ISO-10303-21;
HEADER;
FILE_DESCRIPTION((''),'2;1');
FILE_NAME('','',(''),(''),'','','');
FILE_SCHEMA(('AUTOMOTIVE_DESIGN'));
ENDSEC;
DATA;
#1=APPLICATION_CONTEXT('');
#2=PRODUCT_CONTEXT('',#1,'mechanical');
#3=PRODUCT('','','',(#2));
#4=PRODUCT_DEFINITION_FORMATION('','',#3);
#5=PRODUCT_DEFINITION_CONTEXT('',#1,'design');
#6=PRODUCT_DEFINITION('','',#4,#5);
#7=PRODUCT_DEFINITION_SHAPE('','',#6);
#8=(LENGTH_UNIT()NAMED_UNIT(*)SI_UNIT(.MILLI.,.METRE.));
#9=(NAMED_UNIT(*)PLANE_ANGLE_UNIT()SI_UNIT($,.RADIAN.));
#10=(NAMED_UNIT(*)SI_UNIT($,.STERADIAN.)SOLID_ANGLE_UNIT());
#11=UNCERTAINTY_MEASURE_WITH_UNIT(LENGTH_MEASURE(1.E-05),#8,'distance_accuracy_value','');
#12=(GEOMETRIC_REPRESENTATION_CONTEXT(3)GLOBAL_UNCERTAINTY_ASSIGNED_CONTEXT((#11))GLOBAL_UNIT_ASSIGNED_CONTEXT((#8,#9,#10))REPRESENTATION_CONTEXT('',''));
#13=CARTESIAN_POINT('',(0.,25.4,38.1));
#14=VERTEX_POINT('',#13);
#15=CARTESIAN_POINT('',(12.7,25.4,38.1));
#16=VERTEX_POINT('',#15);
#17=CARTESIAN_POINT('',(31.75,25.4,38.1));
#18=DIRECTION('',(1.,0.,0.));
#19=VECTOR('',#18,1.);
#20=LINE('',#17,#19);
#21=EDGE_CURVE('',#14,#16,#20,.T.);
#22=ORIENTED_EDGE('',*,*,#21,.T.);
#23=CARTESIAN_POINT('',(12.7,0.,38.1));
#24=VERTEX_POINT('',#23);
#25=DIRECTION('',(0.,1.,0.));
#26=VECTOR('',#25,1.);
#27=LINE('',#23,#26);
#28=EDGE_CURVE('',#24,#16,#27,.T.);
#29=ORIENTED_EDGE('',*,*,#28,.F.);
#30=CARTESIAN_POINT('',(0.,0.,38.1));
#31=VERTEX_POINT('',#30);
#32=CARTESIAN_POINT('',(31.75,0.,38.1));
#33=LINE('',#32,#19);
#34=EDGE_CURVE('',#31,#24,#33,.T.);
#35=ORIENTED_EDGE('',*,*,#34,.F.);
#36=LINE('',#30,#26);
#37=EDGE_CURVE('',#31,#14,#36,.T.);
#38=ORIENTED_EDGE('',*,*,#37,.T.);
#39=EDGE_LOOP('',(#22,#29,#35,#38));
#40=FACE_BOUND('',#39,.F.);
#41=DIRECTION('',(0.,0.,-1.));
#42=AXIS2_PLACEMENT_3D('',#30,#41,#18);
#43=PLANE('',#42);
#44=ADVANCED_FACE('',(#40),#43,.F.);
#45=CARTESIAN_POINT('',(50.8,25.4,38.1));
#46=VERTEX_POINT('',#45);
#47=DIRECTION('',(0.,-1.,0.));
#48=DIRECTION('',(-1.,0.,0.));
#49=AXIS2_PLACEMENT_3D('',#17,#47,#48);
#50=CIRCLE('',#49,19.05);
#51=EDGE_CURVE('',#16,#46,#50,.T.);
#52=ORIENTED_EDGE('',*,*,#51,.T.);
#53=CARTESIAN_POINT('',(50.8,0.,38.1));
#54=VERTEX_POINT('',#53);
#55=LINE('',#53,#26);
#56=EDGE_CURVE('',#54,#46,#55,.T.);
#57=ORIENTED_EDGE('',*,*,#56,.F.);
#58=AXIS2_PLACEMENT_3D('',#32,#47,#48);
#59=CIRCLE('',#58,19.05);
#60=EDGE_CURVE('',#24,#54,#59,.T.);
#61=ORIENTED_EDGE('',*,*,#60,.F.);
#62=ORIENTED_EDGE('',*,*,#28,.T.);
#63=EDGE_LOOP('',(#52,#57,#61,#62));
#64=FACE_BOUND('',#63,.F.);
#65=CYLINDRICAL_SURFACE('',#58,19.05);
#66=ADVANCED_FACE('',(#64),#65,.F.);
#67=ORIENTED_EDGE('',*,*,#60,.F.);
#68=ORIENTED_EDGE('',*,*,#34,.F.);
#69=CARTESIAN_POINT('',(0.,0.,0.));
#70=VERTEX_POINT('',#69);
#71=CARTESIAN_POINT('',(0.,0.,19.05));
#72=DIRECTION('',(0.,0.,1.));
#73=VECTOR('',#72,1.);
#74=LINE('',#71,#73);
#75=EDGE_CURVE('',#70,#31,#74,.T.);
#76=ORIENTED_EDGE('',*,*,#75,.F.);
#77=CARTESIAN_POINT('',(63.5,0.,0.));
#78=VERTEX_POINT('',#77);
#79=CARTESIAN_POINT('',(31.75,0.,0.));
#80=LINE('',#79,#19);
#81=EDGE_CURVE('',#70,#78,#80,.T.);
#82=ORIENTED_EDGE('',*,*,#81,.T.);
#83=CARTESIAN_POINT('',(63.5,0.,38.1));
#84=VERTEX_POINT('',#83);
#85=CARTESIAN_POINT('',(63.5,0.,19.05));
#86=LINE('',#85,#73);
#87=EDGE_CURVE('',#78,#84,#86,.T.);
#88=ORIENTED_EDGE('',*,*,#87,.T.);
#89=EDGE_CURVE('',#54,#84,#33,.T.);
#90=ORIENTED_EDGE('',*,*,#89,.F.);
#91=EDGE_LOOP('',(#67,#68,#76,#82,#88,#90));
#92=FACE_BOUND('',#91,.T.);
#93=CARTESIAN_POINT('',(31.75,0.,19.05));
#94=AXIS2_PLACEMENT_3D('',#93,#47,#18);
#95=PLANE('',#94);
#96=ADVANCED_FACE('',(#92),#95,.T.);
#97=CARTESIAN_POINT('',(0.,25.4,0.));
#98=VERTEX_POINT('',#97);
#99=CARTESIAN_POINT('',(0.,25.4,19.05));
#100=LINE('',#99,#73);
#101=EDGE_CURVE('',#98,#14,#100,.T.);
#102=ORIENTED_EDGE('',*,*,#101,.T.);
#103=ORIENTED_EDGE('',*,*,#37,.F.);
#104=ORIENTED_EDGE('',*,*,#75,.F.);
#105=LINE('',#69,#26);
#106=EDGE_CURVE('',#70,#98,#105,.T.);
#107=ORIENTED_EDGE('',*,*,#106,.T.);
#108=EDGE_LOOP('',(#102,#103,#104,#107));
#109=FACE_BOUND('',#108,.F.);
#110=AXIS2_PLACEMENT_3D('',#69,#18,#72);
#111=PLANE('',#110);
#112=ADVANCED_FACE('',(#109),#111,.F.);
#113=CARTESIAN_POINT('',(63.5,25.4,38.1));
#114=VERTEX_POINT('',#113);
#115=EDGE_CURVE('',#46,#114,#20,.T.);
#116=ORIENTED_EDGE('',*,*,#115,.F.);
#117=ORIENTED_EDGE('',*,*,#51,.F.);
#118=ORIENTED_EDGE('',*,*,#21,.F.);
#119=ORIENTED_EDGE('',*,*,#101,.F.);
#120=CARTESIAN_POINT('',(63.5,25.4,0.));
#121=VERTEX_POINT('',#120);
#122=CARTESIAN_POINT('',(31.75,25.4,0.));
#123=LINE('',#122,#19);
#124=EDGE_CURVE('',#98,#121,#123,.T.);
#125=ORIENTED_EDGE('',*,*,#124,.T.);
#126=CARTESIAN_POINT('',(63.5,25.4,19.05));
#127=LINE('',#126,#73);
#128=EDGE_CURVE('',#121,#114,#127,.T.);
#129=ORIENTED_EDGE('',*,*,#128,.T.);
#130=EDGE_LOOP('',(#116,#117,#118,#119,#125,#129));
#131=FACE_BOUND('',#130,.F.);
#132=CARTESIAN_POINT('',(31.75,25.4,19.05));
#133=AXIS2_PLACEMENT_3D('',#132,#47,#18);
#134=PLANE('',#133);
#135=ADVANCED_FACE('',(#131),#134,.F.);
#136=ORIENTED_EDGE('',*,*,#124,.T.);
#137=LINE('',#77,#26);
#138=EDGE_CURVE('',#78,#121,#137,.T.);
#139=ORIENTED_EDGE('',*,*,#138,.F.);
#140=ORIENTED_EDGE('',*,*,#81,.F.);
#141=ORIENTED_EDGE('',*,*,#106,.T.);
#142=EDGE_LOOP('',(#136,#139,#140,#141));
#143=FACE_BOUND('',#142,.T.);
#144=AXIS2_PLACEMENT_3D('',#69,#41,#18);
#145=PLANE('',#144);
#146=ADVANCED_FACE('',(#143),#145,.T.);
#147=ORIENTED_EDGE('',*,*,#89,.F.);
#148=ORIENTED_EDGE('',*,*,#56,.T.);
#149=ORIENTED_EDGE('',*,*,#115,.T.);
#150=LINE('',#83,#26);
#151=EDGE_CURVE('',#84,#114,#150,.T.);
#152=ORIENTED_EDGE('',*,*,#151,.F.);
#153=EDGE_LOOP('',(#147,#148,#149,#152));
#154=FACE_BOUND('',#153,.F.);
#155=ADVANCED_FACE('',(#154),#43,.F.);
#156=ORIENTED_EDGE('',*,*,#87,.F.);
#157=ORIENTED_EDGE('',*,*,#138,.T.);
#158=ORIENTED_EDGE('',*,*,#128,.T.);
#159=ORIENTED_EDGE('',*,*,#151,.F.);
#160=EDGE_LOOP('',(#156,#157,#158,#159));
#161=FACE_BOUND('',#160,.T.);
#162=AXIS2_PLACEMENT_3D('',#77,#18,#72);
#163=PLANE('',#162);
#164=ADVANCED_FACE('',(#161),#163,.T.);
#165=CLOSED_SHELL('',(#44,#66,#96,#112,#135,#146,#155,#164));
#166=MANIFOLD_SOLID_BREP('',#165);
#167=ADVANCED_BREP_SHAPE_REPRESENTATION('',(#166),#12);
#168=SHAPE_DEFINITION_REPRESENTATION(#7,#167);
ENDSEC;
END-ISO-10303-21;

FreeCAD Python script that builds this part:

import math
import FreeCAD as App
import Part
import Sketcher
from FreeCAD import Vector
Q = App.Units.Quantity

doc = App.newDocument("Part")
params = doc.addObject("Spreadsheet::Sheet", "Params")
for row, (alias, value) in enumerate([
    ("sketch1_width", "2.5 in"),
    ("sketch1_height", "1.5 in"),
    ("pad1_length", "1 in"),
    ("sketch2_radius", "0.75 in"),
    ("pocket1_length", "1 in"),
], start=1):
    params.set(f"A{row}", alias)
    params.set(f"B{row}", "=" + value)
    params.setAlias(f"B{row}", alias)

body = doc.addObject("PartDesign::Body", "Body")

# Sketch on XZ plane
sketch1 = body.newObject("Sketcher::SketchObject", "Sketch")
sketch1.AttachmentSupport = (doc.getObject("XZ_Plane"), [""])
sketch1.MapMode = "FlatFace"
sketch1.addGeometry([
    Part.LineSegment(Vector(0, 38, 0), Vector(0, 0, 0)),
    Part.LineSegment(Vector(0, 0, 0), Vector(64, 0, 0)),
    Part.LineSegment(Vector(64, 0, 0), Vector(64, 38, 0)),
    Part.LineSegment(Vector(64, 38, 0), Vector(0, 38, 0)),
], False)
sketch1.addConstraint([
    Sketcher.Constraint("Coincident", 0, 2, 1, 1),
    Sketcher.Constraint("Coincident", 1, 2, 2, 1),
    Sketcher.Constraint("Coincident", 2, 2, 3, 1),
    Sketcher.Constraint("Coincident", 3, 2, 0, 1),
    Sketcher.Constraint("Vertical", 0),
    Sketcher.Constraint("Horizontal", 1),
    Sketcher.Constraint("Vertical", 2),
    Sketcher.Constraint("Horizontal", 3),
    Sketcher.Constraint("Coincident", 0, 2, -1, 1),
    Sketcher.Constraint("DistanceX", 1, 1, 1, 2, Q("2.5 in")),
    Sketcher.Constraint("DistanceY", 0, 2, 0, 1, Q("1.5 in")),
])
sketch1.setExpression("Constraints[9]", "Params.sketch1_width")
sketch1.setExpression("Constraints[10]", "Params.sketch1_height")
pad1 = body.newObject("PartDesign::Pad", "Pad")
pad1.Profile = sketch1
pad1.setExpression("Length", "Params.pad1_length")
pad1.Reversed = True

# Sketch on XZ plane
sketch2 = body.newObject("Sketcher::SketchObject", "Sketch001")
sketch2.AttachmentSupport = (doc.getObject("XZ_Plane"), [""])
sketch2.MapMode = "FlatFace"
sketch2.addGeometry([
    Part.LineSegment(Vector(51, 38, 0), Vector(13, 38, 0)),
    Part.ArcOfCircle(Part.Circle(Vector(32, 38, 0), Vector(0, 0, 1), 19), math.radians(180), math.radians(360)),
], False)
sketch2.addConstraint([
    Sketcher.Constraint("Coincident", 0, 1, 1, 2),
    Sketcher.Constraint("Coincident", 1, 1, 0, 2),
    Sketcher.Constraint("Horizontal", 0),
    Sketcher.Constraint("Horizontal", 1, 3, 0, 1),
    Sketcher.Constraint("Radius", 1, Q("0.75 in")),
    Sketcher.Constraint("DistanceX", -1, 1, 0, 1, Q("2 in")),
    Sketcher.Constraint("DistanceY", -1, 1, 1, 3, Q("1.5 in")),
])
sketch2.setExpression("Constraints[4]", "Params.sketch2_radius")
pocket1 = body.newObject("PartDesign::Pocket", "Pocket")
pocket1.Profile = sketch2
pocket1.setExpression("Length", "Params.pocket1_length")

doc.recompute()
